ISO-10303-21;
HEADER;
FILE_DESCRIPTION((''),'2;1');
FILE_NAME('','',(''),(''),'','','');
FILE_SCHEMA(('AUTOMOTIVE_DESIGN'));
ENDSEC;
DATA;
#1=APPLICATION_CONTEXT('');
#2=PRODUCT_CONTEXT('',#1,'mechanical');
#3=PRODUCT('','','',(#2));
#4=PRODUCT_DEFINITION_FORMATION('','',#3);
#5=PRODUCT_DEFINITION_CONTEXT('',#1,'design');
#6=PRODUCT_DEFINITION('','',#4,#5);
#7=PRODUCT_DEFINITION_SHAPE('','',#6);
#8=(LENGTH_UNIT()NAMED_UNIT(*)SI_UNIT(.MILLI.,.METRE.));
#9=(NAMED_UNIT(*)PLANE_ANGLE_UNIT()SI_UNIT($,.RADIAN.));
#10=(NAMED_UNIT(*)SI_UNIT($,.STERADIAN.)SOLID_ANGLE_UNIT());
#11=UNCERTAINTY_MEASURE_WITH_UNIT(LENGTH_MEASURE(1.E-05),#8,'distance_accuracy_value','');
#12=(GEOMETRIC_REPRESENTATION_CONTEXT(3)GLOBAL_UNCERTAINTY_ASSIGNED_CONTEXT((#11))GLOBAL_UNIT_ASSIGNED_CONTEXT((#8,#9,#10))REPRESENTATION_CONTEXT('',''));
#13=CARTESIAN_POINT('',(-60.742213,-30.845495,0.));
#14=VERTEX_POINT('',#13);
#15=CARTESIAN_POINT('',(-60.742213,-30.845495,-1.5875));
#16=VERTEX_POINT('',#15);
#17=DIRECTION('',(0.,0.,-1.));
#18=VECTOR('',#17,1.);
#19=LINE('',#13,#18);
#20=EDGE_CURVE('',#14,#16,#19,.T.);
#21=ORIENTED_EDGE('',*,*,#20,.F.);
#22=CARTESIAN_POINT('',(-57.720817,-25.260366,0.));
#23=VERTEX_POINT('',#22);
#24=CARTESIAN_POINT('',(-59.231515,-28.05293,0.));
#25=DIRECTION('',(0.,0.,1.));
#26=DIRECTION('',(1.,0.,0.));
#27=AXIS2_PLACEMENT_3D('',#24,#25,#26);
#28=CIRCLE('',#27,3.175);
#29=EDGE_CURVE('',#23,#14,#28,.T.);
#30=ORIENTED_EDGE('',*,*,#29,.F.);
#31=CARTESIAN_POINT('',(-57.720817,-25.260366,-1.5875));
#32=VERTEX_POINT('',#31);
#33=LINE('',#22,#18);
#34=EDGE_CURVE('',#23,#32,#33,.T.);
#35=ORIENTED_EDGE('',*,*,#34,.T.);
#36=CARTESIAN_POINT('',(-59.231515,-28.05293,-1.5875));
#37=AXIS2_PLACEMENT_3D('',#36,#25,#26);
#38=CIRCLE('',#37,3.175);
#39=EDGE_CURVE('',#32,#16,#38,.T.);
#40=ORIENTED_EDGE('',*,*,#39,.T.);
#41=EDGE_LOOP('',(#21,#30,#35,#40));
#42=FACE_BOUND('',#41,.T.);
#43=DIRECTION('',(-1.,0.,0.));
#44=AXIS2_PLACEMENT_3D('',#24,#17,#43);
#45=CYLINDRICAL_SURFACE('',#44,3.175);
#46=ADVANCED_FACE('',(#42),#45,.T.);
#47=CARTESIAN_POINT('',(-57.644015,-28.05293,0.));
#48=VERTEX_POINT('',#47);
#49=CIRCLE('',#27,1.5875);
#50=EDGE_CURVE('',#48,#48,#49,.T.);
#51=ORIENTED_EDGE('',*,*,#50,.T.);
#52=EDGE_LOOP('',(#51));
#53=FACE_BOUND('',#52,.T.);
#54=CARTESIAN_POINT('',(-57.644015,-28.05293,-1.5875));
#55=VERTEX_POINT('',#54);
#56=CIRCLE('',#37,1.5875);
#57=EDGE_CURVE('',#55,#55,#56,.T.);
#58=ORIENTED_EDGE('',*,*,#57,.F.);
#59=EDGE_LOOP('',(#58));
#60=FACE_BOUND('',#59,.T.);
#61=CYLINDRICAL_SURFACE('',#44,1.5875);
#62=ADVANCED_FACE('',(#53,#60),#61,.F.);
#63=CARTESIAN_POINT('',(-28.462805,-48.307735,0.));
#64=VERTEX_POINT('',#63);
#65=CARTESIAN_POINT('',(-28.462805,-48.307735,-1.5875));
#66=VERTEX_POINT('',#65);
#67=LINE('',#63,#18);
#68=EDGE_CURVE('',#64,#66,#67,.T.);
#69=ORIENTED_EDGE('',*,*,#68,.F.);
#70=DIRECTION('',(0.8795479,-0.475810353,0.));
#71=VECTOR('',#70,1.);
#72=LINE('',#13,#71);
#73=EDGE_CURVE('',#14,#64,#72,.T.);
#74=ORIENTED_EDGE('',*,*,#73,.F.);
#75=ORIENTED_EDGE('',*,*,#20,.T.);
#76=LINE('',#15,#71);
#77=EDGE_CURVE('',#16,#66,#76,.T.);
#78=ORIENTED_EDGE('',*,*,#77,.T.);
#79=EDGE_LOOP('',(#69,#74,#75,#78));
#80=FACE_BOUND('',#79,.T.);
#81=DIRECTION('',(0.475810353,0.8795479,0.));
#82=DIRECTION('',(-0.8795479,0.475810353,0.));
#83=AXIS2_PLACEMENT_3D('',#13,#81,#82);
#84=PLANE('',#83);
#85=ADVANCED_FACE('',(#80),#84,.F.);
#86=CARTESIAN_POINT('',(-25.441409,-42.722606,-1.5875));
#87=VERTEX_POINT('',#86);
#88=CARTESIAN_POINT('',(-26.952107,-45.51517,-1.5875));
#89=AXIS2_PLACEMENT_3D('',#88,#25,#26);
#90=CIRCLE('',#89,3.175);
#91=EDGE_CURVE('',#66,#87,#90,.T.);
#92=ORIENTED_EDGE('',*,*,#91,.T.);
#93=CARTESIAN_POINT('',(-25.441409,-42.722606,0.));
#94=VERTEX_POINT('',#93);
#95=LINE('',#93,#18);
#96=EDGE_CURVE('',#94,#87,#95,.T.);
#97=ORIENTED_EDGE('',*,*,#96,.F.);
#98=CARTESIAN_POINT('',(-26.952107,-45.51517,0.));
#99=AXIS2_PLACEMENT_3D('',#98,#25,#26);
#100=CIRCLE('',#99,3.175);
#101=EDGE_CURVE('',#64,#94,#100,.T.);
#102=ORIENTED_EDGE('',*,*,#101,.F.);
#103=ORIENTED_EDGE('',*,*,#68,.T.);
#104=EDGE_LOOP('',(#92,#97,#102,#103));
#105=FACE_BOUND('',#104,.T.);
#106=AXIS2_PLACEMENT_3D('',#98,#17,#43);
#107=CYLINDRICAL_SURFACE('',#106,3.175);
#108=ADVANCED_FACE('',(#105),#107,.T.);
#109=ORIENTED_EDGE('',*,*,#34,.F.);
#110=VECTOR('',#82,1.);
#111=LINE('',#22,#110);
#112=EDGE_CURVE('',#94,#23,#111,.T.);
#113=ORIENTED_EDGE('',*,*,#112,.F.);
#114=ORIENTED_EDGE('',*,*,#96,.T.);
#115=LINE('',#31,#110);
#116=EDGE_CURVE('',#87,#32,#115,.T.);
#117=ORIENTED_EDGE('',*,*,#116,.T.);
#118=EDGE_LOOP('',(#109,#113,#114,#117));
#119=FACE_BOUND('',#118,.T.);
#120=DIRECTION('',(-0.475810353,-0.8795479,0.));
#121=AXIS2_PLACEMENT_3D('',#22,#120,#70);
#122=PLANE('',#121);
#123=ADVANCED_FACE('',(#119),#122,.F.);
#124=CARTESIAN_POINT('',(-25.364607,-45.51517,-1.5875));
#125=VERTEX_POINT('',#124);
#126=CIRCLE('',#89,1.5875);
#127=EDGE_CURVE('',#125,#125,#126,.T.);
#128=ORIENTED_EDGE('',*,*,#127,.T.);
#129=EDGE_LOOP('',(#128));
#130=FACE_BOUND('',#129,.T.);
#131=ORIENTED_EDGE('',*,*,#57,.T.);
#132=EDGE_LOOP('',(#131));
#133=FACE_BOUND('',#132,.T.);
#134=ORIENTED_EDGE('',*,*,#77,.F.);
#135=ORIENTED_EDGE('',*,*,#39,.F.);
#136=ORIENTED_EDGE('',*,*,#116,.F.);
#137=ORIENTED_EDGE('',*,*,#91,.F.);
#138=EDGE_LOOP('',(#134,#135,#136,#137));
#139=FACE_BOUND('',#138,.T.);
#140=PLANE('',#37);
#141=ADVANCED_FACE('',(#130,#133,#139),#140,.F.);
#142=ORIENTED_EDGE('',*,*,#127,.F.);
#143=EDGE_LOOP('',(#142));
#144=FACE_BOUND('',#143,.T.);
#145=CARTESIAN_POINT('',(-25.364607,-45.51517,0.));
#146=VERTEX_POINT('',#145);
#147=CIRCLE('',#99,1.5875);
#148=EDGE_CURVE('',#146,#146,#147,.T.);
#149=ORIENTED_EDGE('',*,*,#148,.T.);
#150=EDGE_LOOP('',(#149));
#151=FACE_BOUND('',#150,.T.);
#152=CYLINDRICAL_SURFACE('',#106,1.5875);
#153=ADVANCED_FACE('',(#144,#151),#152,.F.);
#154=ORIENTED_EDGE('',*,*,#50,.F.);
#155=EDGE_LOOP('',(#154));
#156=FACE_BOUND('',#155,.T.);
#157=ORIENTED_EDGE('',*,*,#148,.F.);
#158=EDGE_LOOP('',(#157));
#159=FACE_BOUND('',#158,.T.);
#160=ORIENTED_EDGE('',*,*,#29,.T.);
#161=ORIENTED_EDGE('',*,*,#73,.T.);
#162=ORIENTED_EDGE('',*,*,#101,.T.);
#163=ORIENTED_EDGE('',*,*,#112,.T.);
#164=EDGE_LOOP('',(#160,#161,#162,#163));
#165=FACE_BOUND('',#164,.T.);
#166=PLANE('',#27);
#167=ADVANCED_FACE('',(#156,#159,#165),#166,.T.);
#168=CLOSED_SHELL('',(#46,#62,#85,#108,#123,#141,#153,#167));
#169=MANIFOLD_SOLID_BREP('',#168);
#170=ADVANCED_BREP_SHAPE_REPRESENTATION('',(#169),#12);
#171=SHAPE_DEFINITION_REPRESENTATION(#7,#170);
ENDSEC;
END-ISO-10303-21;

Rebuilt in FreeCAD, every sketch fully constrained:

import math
import FreeCAD as App
import Part
import Sketcher
Q = App.Units.Quantity

doc = App.newDocument("Part")
body = doc.addObject("PartDesign::Body", "Body")

# Sketch on XY plane
sketch1 = body.newObject("Sketcher::SketchObject", "Sketch")
sketch1.AttachmentSupport = (doc.getObject("XY_Plane"), [""])
sketch1.MapMode = "FlatFace"
sketch1.AttachmentOffset = App.Placement(App.Vector(0, 0, -0.0625 * 25.4), App.Rotation())
sketch1.addGeometry([
    Part.LineSegment(App.Vector(-25.441409, -42.722606, 0), App.Vector(-57.720817, -25.260366, 0)),  # 0
    Part.ArcOfCircle(Part.Circle(App.Vector(-59.231515, -28.05293, 0), App.Vector(0, 0, 1), 3.175), math.radians(61.587875), math.radians(241.587875)),  # 1
    Part.LineSegment(App.Vector(-60.742213, -30.845495, 0), App.Vector(-28.462805, -48.307735, 0)),  # 2
    Part.ArcOfCircle(Part.Circle(App.Vector(-26.952107, -45.51517, 0), App.Vector(0, 0, 1), 3.175), math.radians(-118.412125), math.radians(61.587875)),  # 3
    Part.Circle(App.Vector(-26.952107, -45.51517, 0), App.Vector(0, 0, 1), 1.5875),  # 4
    Part.Circle(App.Vector(-59.231515, -28.05293, 0), App.Vector(0, 0, 1), 1.5875),  # 5
], False)
sketch1.addConstraint([
    Sketcher.Constraint("Tangent", 0, 2, 1, 1),
    Sketcher.Constraint("Tangent", 1, 2, 2, 1),
    Sketcher.Constraint("Tangent", 2, 2, 3, 1),
    Sketcher.Constraint("Tangent", 3, 2, 0, 1),
    Sketcher.Constraint("Coincident", 4, 3, 3, 3),
    Sketcher.Constraint("Coincident", 5, 3, 1, 3),
    Sketcher.Constraint("Equal", 1, 3),
    Sketcher.Constraint("Equal", 4, 5),
    Sketcher.Constraint("Diameter", 4, Q("0.125 in")),
    Sketcher.Constraint("Radius", 1, Q("0.125 in")),
    Sketcher.Constraint("Distance", 0, 36.7),
    Sketcher.Constraint("DistanceY", 1, 3, -1, 1, 28.05293),
    Sketcher.Constraint("DistanceY", 3, 3, -1, 1, 45.51517),
    Sketcher.Constraint("DistanceX", 3, 2, -1, 1, 25.441409),
])
pad1 = body.newObject("PartDesign::Pad", "Pad")
pad1.Profile = sketch1
pad1.Length = Q("0.0625 in")

doc.recompute()
